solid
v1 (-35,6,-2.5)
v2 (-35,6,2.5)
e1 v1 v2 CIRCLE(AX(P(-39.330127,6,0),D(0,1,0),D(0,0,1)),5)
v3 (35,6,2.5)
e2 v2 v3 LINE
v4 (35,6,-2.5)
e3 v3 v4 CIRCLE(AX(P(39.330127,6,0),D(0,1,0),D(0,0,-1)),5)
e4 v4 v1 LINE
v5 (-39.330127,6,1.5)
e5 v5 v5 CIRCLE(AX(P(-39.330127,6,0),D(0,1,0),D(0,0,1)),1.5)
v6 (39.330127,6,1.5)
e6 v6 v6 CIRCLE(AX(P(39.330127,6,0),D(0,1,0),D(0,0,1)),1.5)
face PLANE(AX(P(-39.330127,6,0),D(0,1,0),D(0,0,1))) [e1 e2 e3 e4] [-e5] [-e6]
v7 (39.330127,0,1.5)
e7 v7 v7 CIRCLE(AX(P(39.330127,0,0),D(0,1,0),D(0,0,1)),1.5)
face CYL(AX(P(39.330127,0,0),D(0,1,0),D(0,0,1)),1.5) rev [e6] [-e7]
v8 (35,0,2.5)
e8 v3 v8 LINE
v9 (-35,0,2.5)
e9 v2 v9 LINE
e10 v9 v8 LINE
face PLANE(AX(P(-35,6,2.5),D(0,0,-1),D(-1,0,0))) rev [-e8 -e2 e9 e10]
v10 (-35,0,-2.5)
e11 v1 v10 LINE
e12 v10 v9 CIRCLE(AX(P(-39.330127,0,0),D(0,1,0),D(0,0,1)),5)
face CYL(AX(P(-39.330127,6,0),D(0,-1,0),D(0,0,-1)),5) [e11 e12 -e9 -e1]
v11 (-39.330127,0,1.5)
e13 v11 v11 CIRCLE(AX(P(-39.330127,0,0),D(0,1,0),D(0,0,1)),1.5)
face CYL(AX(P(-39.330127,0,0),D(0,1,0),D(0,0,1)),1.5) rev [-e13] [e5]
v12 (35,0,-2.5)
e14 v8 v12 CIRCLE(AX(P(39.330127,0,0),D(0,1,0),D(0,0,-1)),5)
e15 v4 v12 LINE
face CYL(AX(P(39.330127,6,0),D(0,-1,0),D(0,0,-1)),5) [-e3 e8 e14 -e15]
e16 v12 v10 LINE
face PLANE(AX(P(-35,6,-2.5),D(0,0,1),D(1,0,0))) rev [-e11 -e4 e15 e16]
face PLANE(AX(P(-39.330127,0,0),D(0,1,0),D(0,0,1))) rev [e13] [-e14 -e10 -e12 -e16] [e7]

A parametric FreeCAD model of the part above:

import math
import FreeCAD as App
import Part
import Sketcher
from FreeCAD import Vector
Q = App.Units.Quantity

doc = App.newDocument("Part")
body = doc.addObject("PartDesign::Body", "Body")

sketch1 = body.newObject("Sketcher::SketchObject", "Sketch")
sketch1.AttachmentSupport = (doc.getObject("XZ_Plane"), [""])
sketch1.MapMode = "FlatFace"
sketch1.addGeometry(Part.LineSegment(Vector(35, -2.5, 0), Vector(-35, -2.5, 0)), False)
sketch1.addGeometry(Part.ArcOfCircle(Part.Circle(Vector(-39.330127, 0, 0), Vector(0, 0, 1), 5), math.radians(30), math.radians(330)), False)
sketch1.addGeometry(Part.LineSegment(Vector(-35, 2.5, 0), Vector(35, 2.5, 0)), False)
sketch1.addGeometry(Part.ArcOfCircle(Part.Circle(Vector(39.330127, 0, 0), Vector(0, 0, 1), 5), math.radians(-150), math.radians(150)), False)
sketch1.addConstraint(Sketcher.Constraint("Coincident", 0, 2, 1, 2))
sketch1.addConstraint(Sketcher.Constraint("Coincident", 1, 1, 2, 1))
sketch1.addConstraint(Sketcher.Constraint("Coincident", 2, 2, 3, 2))
sketch1.addConstraint(Sketcher.Constraint("Coincident", 3, 1, 0, 1))
sketch1.addConstraint(Sketcher.Constraint("Horizontal", 0))
sketch1.addConstraint(Sketcher.Constraint("Horizontal", 2))
sketch1.addConstraint(Sketcher.Constraint("Equal", 1, 3))
sketch1.addConstraint(Sketcher.Constraint("Symmetric", 1, 3, 3, 3, -1, 1))
sketch1.addConstraint(Sketcher.Constraint("Symmetric", 0, 2, 1, 1, -1))
sketch1.addConstraint(Sketcher.Constraint("Radius", 1, Q("5 mm")))
sketch1.addConstraint(Sketcher.Constraint("DistanceX", 0, 2, 0, 1, Q("70 mm")))
sketch1.addConstraint(Sketcher.Constraint("DistanceY", 0, 2, 1, 1, Q("5 mm")))
pad1 = body.newObject("PartDesign::Pad", "Pad")
pad1.Profile = sketch1
pad1.Length = 6
pad1.Reversed = True

sketch2 = body.newObject("Sketcher::SketchObject", "Sketch001")
sketch2.AttachmentSupport = (doc.getObject("XZ_Plane"), [""])
sketch2.MapMode = "FlatFace"
sketch2.AttachmentOffset = App.Placement(Vector(0, 0, -6), App.Rotation())
sketch2.addGeometry(Part.Circle(Vector(-39.330127, 0, 0), Vector(0, 0, 1), 1.5), False)
sketch2.addGeometry(Part.Circle(Vector(39.330127, 0, 0), Vector(0, 0, 1), 1.5), False)
sketch2.addConstraint(Sketcher.Constraint("Equal", 0, 1))
sketch2.addConstraint(Sketcher.Constraint("Symmetric", 0, 3, 1, 3, -1, 1))
sketch2.addConstraint(Sketcher.Constraint("PointOnObject", 0, 3, -1))
sketch2.addConstraint(Sketcher.Constraint("Diameter", 0, Q("3 mm")))
sketch2.addConstraint(Sketcher.Constraint("DistanceX", 0, 3, -1, 1, Q("39.330127 mm")))
pocket1 = body.newObject("PartDesign::Pocket", "Pocket")
pocket1.Profile = sketch2
pocket1.Type = "ThroughAll"
pocket1.Reversed = True

doc.recompute()
